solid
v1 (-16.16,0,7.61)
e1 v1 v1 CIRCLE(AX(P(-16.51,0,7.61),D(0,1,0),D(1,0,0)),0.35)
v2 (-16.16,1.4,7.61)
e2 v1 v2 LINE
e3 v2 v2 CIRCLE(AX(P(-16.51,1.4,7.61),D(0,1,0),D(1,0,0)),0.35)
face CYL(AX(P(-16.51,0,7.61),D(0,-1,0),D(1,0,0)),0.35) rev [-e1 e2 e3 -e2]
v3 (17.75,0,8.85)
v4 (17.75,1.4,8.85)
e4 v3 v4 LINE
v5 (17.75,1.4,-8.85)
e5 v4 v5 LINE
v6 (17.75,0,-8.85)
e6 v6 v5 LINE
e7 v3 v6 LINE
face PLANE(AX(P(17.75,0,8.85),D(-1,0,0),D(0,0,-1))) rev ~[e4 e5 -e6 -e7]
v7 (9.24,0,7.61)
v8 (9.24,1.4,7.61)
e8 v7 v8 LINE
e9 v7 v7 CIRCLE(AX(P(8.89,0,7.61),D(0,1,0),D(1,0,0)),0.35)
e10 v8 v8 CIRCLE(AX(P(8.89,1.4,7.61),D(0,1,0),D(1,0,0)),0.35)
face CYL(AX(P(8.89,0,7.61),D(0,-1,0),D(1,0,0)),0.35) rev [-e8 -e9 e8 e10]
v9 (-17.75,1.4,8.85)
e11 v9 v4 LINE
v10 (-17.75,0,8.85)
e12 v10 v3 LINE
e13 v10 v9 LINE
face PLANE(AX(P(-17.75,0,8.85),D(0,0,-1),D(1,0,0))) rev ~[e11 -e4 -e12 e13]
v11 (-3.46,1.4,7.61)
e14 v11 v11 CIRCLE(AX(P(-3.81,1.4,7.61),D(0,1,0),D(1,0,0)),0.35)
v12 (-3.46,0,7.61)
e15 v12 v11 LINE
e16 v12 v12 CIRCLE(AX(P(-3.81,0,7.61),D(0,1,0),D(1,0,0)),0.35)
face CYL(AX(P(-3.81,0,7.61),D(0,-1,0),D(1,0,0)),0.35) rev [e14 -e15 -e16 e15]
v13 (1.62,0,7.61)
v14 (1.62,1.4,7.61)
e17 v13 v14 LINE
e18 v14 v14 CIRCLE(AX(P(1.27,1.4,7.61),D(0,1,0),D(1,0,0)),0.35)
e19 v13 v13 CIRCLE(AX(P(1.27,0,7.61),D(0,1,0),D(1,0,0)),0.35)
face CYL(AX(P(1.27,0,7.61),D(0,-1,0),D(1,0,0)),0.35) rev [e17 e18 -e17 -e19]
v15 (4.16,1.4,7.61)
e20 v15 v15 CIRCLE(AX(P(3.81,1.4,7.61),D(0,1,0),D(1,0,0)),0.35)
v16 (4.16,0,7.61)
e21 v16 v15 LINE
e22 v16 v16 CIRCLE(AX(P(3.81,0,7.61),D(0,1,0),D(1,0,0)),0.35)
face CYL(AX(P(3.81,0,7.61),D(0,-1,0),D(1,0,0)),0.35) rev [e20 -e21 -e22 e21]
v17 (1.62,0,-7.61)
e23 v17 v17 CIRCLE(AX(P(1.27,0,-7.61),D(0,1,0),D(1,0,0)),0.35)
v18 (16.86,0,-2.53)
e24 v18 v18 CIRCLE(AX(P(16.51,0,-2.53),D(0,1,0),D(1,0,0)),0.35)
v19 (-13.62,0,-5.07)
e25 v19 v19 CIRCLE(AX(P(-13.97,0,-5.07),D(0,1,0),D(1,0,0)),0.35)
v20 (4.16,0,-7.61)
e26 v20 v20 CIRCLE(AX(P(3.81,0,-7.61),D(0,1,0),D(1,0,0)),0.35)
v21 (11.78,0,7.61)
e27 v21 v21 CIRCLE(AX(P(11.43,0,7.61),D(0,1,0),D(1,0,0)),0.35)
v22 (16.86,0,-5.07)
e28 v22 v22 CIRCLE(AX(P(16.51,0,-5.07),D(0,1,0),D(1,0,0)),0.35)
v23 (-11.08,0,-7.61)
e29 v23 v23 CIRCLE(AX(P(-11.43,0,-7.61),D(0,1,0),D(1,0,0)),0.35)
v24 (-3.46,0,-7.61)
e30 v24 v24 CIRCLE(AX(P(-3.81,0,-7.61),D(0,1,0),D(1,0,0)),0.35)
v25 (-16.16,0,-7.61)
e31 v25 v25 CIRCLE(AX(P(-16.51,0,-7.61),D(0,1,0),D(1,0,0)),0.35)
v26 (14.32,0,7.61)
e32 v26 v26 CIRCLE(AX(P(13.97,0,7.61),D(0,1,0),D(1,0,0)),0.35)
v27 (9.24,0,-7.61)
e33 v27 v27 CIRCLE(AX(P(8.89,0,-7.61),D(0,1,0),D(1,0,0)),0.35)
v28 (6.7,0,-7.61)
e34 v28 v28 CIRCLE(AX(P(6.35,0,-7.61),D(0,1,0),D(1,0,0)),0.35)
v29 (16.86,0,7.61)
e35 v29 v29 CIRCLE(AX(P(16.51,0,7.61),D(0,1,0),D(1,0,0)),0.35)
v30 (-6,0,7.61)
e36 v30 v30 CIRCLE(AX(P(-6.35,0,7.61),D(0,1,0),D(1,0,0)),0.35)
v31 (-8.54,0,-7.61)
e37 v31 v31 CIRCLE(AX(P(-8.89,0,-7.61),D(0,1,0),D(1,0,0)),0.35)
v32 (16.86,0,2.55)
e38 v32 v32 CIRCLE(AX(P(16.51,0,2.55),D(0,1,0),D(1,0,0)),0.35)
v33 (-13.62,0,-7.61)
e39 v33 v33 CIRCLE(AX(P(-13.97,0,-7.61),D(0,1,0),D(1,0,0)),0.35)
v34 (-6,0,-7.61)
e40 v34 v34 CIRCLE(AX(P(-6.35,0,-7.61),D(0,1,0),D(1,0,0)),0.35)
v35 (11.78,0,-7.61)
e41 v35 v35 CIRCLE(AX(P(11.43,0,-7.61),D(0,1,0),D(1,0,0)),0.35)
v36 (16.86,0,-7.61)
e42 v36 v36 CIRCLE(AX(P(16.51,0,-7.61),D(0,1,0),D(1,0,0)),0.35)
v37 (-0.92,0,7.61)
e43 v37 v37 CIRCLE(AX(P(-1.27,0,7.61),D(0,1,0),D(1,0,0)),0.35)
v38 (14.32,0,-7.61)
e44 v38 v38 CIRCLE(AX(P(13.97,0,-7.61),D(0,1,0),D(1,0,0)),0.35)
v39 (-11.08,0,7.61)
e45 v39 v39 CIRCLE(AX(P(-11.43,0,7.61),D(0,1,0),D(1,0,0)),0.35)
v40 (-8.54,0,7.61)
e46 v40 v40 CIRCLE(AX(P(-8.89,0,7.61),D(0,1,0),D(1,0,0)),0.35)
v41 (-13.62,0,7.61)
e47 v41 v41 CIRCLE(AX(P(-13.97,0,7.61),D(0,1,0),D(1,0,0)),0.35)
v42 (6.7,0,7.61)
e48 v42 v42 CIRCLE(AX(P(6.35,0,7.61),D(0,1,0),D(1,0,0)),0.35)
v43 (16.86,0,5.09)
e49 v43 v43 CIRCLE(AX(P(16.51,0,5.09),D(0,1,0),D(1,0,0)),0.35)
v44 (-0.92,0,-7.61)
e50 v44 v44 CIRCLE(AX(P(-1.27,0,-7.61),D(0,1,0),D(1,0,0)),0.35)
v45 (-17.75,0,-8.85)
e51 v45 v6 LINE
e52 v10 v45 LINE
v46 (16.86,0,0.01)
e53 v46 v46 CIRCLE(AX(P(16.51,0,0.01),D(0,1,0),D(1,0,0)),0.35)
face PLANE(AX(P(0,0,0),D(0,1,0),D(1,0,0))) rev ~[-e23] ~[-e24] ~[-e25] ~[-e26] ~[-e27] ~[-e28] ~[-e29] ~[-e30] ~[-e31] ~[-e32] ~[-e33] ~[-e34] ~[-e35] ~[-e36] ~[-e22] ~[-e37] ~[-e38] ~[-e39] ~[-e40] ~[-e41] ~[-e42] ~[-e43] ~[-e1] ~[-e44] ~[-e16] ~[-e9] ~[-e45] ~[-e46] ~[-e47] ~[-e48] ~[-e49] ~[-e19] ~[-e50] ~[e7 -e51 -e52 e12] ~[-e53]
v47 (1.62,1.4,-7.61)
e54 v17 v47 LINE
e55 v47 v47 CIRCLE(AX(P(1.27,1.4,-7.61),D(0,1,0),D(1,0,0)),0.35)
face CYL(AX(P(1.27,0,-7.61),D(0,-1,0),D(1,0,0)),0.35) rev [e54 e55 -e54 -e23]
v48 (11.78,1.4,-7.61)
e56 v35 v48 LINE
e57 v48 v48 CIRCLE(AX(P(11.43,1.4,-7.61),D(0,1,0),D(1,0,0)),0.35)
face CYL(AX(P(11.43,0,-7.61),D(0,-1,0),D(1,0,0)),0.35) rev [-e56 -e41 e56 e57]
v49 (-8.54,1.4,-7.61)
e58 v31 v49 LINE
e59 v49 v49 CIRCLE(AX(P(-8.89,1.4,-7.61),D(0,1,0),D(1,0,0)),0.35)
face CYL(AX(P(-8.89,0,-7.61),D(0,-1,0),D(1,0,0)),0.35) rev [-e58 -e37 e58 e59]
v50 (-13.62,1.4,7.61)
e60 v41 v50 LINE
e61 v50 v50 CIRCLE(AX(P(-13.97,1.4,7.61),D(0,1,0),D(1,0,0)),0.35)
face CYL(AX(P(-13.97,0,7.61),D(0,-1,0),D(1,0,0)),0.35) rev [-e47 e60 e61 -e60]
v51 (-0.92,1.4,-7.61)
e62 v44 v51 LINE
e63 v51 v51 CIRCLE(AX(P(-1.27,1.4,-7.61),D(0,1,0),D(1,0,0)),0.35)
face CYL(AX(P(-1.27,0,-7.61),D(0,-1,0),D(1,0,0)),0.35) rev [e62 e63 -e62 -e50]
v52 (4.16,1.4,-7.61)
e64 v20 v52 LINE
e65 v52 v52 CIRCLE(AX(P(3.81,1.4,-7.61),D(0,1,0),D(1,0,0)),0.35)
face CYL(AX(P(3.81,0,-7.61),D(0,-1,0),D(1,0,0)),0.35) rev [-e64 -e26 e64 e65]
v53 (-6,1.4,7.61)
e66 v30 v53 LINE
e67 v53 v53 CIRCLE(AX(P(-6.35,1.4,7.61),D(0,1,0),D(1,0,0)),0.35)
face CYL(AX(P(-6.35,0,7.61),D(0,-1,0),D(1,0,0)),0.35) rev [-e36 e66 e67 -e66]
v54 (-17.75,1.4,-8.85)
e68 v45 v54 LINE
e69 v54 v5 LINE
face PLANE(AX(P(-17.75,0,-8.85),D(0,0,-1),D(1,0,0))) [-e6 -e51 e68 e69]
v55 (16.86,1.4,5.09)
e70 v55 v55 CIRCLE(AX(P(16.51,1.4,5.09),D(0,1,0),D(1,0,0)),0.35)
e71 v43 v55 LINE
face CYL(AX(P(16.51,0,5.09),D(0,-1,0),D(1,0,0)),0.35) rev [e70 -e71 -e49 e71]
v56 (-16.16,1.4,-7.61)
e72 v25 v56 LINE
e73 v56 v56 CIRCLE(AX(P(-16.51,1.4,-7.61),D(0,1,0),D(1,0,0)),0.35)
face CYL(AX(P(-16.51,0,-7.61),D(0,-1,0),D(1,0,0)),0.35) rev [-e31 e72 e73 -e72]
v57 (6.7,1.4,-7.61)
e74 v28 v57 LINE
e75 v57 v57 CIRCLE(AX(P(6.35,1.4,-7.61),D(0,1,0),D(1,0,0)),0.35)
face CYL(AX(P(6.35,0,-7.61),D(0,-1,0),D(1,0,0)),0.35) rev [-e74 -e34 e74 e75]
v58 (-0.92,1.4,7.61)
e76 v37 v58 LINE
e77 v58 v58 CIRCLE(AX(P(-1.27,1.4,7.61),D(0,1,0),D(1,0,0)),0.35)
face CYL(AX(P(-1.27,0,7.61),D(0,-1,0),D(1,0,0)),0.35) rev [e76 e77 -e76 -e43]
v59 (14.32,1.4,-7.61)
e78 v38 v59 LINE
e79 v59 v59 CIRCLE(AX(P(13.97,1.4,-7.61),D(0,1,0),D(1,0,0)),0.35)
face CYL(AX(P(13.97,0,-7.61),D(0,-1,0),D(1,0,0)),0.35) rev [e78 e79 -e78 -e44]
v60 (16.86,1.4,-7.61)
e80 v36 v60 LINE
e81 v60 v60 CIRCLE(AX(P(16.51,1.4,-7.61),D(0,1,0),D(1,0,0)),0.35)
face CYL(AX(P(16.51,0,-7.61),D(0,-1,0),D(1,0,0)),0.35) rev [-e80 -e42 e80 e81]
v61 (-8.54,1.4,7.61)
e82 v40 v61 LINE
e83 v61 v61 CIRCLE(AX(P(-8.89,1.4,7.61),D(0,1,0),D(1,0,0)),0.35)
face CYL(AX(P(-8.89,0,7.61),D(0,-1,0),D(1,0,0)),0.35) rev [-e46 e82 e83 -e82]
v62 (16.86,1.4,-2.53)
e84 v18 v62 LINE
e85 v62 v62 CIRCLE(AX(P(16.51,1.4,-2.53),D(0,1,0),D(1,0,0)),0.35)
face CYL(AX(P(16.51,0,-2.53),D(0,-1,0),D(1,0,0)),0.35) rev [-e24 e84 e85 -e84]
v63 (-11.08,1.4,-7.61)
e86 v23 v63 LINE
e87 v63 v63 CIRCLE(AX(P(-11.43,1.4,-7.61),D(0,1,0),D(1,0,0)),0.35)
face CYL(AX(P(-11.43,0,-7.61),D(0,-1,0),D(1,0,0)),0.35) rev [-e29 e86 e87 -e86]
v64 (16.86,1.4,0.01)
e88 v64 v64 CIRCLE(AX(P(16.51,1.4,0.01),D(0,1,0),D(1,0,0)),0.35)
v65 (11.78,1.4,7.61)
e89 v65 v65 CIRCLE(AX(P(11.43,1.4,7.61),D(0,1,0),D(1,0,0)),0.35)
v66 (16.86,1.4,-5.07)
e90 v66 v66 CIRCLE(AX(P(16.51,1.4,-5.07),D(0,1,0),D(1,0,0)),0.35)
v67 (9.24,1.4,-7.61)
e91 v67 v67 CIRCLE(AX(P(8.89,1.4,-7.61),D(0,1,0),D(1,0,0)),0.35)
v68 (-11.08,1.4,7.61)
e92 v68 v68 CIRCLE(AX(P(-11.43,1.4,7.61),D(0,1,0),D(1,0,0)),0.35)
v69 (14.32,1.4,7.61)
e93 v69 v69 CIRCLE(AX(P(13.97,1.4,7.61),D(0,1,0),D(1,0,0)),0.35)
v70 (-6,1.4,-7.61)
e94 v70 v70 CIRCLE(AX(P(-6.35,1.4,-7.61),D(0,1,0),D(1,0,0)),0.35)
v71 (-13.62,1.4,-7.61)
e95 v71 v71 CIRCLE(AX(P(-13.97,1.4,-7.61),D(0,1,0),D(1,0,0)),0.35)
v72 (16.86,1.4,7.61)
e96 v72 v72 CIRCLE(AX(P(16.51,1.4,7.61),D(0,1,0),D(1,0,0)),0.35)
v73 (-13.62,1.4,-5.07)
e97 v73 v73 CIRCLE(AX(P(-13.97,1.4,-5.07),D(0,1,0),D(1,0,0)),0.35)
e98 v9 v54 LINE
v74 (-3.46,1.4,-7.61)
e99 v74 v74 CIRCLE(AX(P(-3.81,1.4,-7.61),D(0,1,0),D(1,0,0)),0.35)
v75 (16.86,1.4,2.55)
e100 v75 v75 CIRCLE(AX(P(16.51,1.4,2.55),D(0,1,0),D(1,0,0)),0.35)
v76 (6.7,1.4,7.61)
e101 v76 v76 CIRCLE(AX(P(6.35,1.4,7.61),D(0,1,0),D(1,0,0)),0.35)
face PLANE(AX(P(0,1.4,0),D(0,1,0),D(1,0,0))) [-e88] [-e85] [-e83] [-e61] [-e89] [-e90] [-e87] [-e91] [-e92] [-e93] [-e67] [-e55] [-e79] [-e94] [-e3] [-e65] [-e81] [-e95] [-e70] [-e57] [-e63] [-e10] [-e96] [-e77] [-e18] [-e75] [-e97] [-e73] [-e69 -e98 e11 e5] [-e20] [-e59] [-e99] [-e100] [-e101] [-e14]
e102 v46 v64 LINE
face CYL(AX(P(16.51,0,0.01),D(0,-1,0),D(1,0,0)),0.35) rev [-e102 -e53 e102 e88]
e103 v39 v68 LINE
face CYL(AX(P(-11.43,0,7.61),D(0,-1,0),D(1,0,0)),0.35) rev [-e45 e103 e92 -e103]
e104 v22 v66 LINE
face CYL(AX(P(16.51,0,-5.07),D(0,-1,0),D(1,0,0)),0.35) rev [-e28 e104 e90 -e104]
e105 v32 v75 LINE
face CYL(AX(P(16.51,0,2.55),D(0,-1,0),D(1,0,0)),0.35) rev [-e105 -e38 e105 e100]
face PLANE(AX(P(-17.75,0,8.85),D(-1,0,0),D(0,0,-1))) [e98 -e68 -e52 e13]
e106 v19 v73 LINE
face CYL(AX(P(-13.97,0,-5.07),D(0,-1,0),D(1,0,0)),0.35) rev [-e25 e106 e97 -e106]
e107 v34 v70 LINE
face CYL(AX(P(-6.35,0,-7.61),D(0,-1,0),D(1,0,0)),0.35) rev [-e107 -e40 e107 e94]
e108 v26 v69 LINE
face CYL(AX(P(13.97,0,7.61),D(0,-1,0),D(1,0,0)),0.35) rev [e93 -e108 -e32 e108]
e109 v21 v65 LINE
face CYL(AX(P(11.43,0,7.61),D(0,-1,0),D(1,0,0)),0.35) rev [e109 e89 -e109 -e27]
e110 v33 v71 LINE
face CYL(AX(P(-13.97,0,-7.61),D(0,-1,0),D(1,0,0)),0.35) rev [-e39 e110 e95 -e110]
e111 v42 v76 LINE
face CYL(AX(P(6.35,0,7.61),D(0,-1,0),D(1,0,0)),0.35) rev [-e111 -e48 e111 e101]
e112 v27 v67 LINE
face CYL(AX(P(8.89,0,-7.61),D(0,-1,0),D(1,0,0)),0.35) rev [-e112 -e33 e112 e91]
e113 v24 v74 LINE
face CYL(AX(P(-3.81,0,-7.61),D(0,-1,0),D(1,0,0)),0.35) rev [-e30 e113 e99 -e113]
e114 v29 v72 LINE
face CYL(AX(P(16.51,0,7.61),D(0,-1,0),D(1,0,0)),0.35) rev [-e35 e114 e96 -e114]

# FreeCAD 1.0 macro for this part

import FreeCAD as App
import Part
import Sketcher
from FreeCAD import Vector
Q = App.Units.Quantity

doc = App.newDocument("Part")
body = doc.addObject("PartDesign::Body", "Body")

# Sketch on XZ plane
sketch1 = body.newObject("Sketcher::SketchObject", "Sketch")
sketch1.AttachmentSupport = (doc.getObject("XZ_Plane"), [""])
sketch1.MapMode = "FlatFace"
sketch1.addGeometry(Part.LineSegment(Vector(-17.75, -8.85, 0), Vector(-17.75, 8.85, 0)), False)
sketch1.addGeometry(Part.LineSegment(Vector(-17.75, 8.85, 0), Vector(17.75, 8.85, 0)), False)
sketch1.addGeometry(Part.LineSegment(Vector(17.75, 8.85, 0), Vector(17.75, -8.85, 0)), False)
sketch1.addGeometry(Part.LineSegment(Vector(17.75, -8.85, 0), Vector(-17.75, -8.85, 0)), False)
sketch1.addGeometry(Part.Circle(Vector(-16.51, 7.61, 0), Vector(0, 0, 1), 0.35), False)
sketch1.addGeometry(Part.Circle(Vector(-13.97, 7.61, 0), Vector(0, 0, 1), 0.35), False)
sketch1.addGeometry(Part.Circle(Vector(-11.43, 7.61, 0), Vector(0, 0, 1), 0.35), False)
sketch1.addGeometry(Part.Circle(Vector(-8.89, 7.61, 0), Vector(0, 0, 1), 0.35), False)
sketch1.addGeometry(Part.Circle(Vector(-6.35, 7.61, 0), Vector(0, 0, 1), 0.35), False)
sketch1.addGeometry(Part.Circle(Vector(-3.81, 7.61, 0), Vector(0, 0, 1), 0.35), False)
sketch1.addGeometry(Part.Circle(Vector(-1.27, 7.61, 0), Vector(0, 0, 1), 0.35), False)
sketch1.addGeometry(Part.Circle(Vector(1.27, 7.61, 0), Vector(0, 0, 1), 0.35), False)
sketch1.addGeometry(Part.Circle(Vector(3.81, 7.61, 0), Vector(0, 0, 1), 0.35), False)
sketch1.addGeometry(Part.Circle(Vector(6.35, 7.61, 0), Vector(0, 0, 1), 0.35), False)
sketch1.addGeometry(Part.Circle(Vector(8.89, 7.61, 0), Vector(0, 0, 1), 0.35), False)
sketch1.addGeometry(Part.Circle(Vector(11.43, 7.61, 0), Vector(0, 0, 1), 0.35), False)
sketch1.addGeometry(Part.Circle(Vector(13.97, 7.61, 0), Vector(0, 0, 1), 0.35), False)
sketch1.addGeometry(Part.Circle(Vector(16.51, 7.61, 0), Vector(0, 0, 1), 0.35), False)
sketch1.addGeometry(Part.Circle(Vector(16.51, 5.09, 0), Vector(0, 0, 1), 0.35), False)
sketch1.addGeometry(Part.Circle(Vector(16.51, 2.55, 0), Vector(0, 0, 1), 0.35), False)
sketch1.addGeometry(Part.Circle(Vector(16.51, 0.01, 0), Vector(0, 0, 1), 0.35), False)
sketch1.addGeometry(Part.Circle(Vector(-13.97, -5.07, 0), Vector(0, 0, 1), 0.35), False)
sketch1.addGeometry(Part.Circle(Vector(-16.51, -7.61, 0), Vector(0, 0, 1), 0.35), False)
sketch1.addGeometry(Part.Circle(Vector(-13.97, -7.61, 0), Vector(0, 0, 1), 0.35), False)
sketch1.addGeometry(Part.Circle(Vector(-11.43, -7.61, 0), Vector(0, 0, 1), 0.35), False)
sketch1.addGeometry(Part.Circle(Vector(-8.89, -7.61, 0), Vector(0, 0, 1), 0.35), False)
sketch1.addGeometry(Part.Circle(Vector(-6.35, -7.61, 0), Vector(0, 0, 1), 0.35), False)
sketch1.addGeometry(Part.Circle(Vector(-3.81, -7.61, 0), Vector(0, 0, 1), 0.35), False)
sketch1.addGeometry(Part.Circle(Vector(-1.27, -7.61, 0), Vector(0, 0, 1), 0.35), False)
sketch1.addGeometry(Part.Circle(Vector(16.51, -2.53, 0), Vector(0, 0, 1), 0.35), False)
sketch1.addGeometry(Part.Circle(Vector(1.27, -7.61, 0), Vector(0, 0, 1), 0.35), False)
sketch1.addGeometry(Part.Circle(Vector(3.81, -7.61, 0), Vector(0, 0, 1), 0.35), False)
sketch1.addGeometry(Part.Circle(Vector(6.35, -7.61, 0), Vector(0, 0, 1), 0.35), False)
sketch1.addGeometry(Part.Circle(Vector(16.51, -5.07, 0), Vector(0, 0, 1), 0.35), False)
sketch1.addGeometry(Part.Circle(Vector(8.89, -7.61, 0), Vector(0, 0, 1), 0.35), False)
sketch1.addGeometry(Part.Circle(Vector(11.43, -7.61, 0), Vector(0, 0, 1), 0.35), False)
sketch1.addGeometry(Part.Circle(Vector(13.97, -7.61, 0), Vector(0, 0, 1), 0.35), False)
sketch1.addGeometry(Part.Circle(Vector(16.51, -7.61, 0), Vector(0, 0, 1), 0.35), False)
sketch1.addConstraint(Sketcher.Constraint("Coincident", 0, 2, 1, 1))
sketch1.addConstraint(Sketcher.Constraint("Coincident", 1, 2, 2, 1))
sketch1.addConstraint(Sketcher.Constraint("Coincident", 2, 2, 3, 1))
sketch1.addConstraint(Sketcher.Constraint("Coincident", 3, 2, 0, 1))
sketch1.addConstraint(Sketcher.Constraint("Vertical", 0))
sketch1.addConstraint(Sketcher.Constraint("Horizontal", 1))
sketch1.addConstraint(Sketcher.Constraint("Vertical", 2))
sketch1.addConstraint(Sketcher.Constraint("Horizontal", 3))
sketch1.addConstraint(Sketcher.Constraint("Equal", 4, 5))
sketch1.addConstraint(Sketcher.Constraint("Equal", 5, 6))
sketch1.addConstraint(Sketcher.Constraint("Equal", 6, 7))
sketch1.addConstraint(Sketcher.Constraint("Equal", 7, 8))
sketch1.addConstraint(Sketcher.Constraint("Equal", 8, 9))
sketch1.addConstraint(Sketcher.Constraint("Equal", 9, 10))
sketch1.addConstraint(Sketcher.Constraint("Equal", 10, 11))
sketch1.addConstraint(Sketcher.Constraint("Equal", 11, 12))
sketch1.addConstraint(Sketcher.Constraint("Equal", 12, 13))
sketch1.addConstraint(Sketcher.Constraint("Equal", 13, 14))
sketch1.addConstraint(Sketcher.Constraint("Equal", 14, 15))
sketch1.addConstraint(Sketcher.Constraint("Equal", 15, 16))
sketch1.addConstraint(Sketcher.Constraint("Equal", 16, 17))
sketch1.addConstraint(Sketcher.Constraint("Equal", 17, 18))
sketch1.addConstraint(Sketcher.Constraint("Equal", 18, 19))
sketch1.addConstraint(Sketcher.Constraint("Equal", 19, 20))
sketch1.addConstraint(Sketcher.Constraint("Equal", 20, 21))
sketch1.addConstraint(Sketcher.Constraint("Equal", 21, 22))
sketch1.addConstraint(Sketcher.Constraint("Equal", 22, 23))
sketch1.addConstraint(Sketcher.Constraint("Equal", 23, 24))
sketch1.addConstraint(Sketcher.Constraint("Equal", 24, 25))
sketch1.addConstraint(Sketcher.Constraint("Equal", 25, 26))
sketch1.addConstraint(Sketcher.Constraint("Equal", 26, 27))
sketch1.addConstraint(Sketcher.Constraint("Equal", 27, 28))
sketch1.addConstraint(Sketcher.Constraint("Equal", 28, 29))
sketch1.addConstraint(Sketcher.Constraint("Equal", 29, 30))
sketch1.addConstraint(Sketcher.Constraint("Equal", 30, 31))
sketch1.addConstraint(Sketcher.Constraint("Equal", 31, 32))
sketch1.addConstraint(Sketcher.Constraint("Equal", 32, 33))
sketch1.addConstraint(Sketcher.Constraint("Equal", 33, 34))
sketch1.addConstraint(Sketcher.Constraint("Equal", 34, 35))
sketch1.addConstraint(Sketcher.Constraint("Equal", 35, 36))
sketch1.addConstraint(Sketcher.Constraint("Equal", 36, 37))
sketch1.addConstraint(Sketcher.Constraint("Symmetric", 17, 3, 22, 3, -1, 1))
sketch1.addConstraint(Sketcher.Constraint("Symmetric", 16, 3, 23, 3, -1, 1))
sketch1.addConstraint(Sketcher.Constraint("Symmetric", 15, 3, 24, 3, -1, 1))
sketch1.addConstraint(Sketcher.Constraint("Symmetric", 14, 3, 25, 3, -1, 1))
sketch1.addConstraint(Sketcher.Constraint("Symmetric", 13, 3, 26, 3, -1, 1))
sketch1.addConstraint(Sketcher.Constraint("Symmetric", 12, 3, 27, 3, -1, 1))
sketch1.addConstraint(Sketcher.Constraint("Symmetric", 11, 3, 28, 3, -1, 1))
sketch1.addConstraint(Sketcher.Constraint("Symmetric", 10, 3, 30, 3, -1, 1))
sketch1.addConstraint(Sketcher.Constraint("Symmetric", 9, 3, 31, 3, -1, 1))
sketch1.addConstraint(Sketcher.Constraint("Symmetric", 8, 3, 32, 3, -1, 1))
sketch1.addConstraint(Sketcher.Constraint("Symmetric", 7, 3, 34, 3, -1, 1))
sketch1.addConstraint(Sketcher.Constraint("Symmetric", 6, 3, 35, 3, -1, 1))
sketch1.addConstraint(Sketcher.Constraint("Symmetric", 5, 3, 36, 3, -1, 1))
sketch1.addConstraint(Sketcher.Constraint("Symmetric", 4, 3, 37, 3, -1, 1))
sketch1.addConstraint(Sketcher.Constraint("Symmetric", 0, 2, 2, 2, -1, 1))
sketch1.addConstraint(Sketcher.Constraint("Symmetric", 10, 3, 11, 3, -2))
sketch1.addConstraint(Sketcher.Constraint("Symmetric", 9, 3, 12, 3, -2))
sketch1.addConstraint(Sketcher.Constraint("Symmetric", 8, 3, 13, 3, -2))
sketch1.addConstraint(Sketcher.Constraint("Symmetric", 7, 3, 14, 3, -2))
sketch1.addConstraint(Sketcher.Constraint("Symmetric", 6, 3, 15, 3, -2))
sketch1.addConstraint(Sketcher.Constraint("Symmetric", 5, 3, 16, 3, -2))
sketch1.addConstraint(Sketcher.Constraint("Symmetric", 4, 3, 17, 3, -2))
sketch1.addConstraint(Sketcher.Constraint("Horizontal", 4, 3, 5, 3))
sketch1.addConstraint(Sketcher.Constraint("Horizontal", 5, 3, 6, 3))
sketch1.addConstraint(Sketcher.Constraint("Horizontal", 6, 3, 7, 3))
sketch1.addConstraint(Sketcher.Constraint("Horizontal", 7, 3, 8, 3))
sketch1.addConstraint(Sketcher.Constraint("Horizontal", 8, 3, 9, 3))
sketch1.addConstraint(Sketcher.Constraint("Horizontal", 9, 3, 10, 3))
sketch1.addConstraint(Sketcher.Constraint("Horizontal", 21, 3, 33, 3))
sketch1.addConstraint(Sketcher.Constraint("Vertical", 17, 3, 18, 3))
sketch1.addConstraint(Sketcher.Constraint("Vertical", 18, 3, 19, 3))
sketch1.addConstraint(Sketcher.Constraint("Vertical", 19, 3, 20, 3))
sketch1.addConstraint(Sketcher.Constraint("Vertical", 5, 3, 21, 3))
sketch1.addConstraint(Sketcher.Constraint("Vertical", 20, 3, 29, 3))
sketch1.addConstraint(Sketcher.Constraint("Vertical", 29, 3, 33, 3))
sketch1.addConstraint(Sketcher.Constraint("Diameter", 4, Q("0.7 mm")))
sketch1.addConstraint(Sketcher.Constraint("DistanceX", 1, 1, 1, 2, Q("35.5 mm")))
sketch1.addConstraint(Sketcher.Constraint("DistanceY", 0, 1, 0, 2, Q("17.7 mm")))
sketch1.addConstraint(Sketcher.Constraint("DistanceX", 4, 3, 9, 3, Q("12.7 mm")))
sketch1.addConstraint(Sketcher.Constraint("DistanceX", 5, 3, 10, 3, Q("12.7 mm")))
sketch1.addConstraint(Sketcher.Constraint("DistanceX", 6, 3, 11, 3, Q("12.7 mm")))
sketch1.addConstraint(Sketcher.Constraint("DistanceX", 7, 3, 12, 3, Q("12.7 mm")))
sketch1.addConstraint(Sketcher.Constraint("DistanceX", 8, 3, 13, 3, Q("12.7 mm")))
sketch1.addConstraint(Sketcher.Constraint("DistanceY", 20, 3, 17, 3, Q("7.6 mm")))
sketch1.addConstraint(Sketcher.Constraint("DistanceY", 19, 3, 1, 2, Q("6.3 mm")))
sketch1.addConstraint(Sketcher.Constraint("DistanceX", 4, 3, -1, 1, Q("16.51 mm")))
sketch1.addConstraint(Sketcher.Constraint("DistanceY", -1, 1, 4, 3, Q("7.61 mm")))
sketch1.addConstraint(Sketcher.Constraint("DistanceX", 5, 3, -1, 1, Q("13.97 mm")))
sketch1.addConstraint(Sketcher.Constraint("DistanceY", -1, 1, 18, 3, Q("5.09 mm")))
sketch1.addConstraint(Sketcher.Constraint("DistanceY", 21, 3, -1, 1, Q("5.07 mm")))
sketch1.addConstraint(Sketcher.Constraint("DistanceY", 29, 3, -1, 1, Q("2.53 mm")))
pad1 = body.newObject("PartDesign::Pad", "Pad")
pad1.Profile = sketch1
pad1.Length = 1.4
pad1.Reversed = True

doc.recompute()
